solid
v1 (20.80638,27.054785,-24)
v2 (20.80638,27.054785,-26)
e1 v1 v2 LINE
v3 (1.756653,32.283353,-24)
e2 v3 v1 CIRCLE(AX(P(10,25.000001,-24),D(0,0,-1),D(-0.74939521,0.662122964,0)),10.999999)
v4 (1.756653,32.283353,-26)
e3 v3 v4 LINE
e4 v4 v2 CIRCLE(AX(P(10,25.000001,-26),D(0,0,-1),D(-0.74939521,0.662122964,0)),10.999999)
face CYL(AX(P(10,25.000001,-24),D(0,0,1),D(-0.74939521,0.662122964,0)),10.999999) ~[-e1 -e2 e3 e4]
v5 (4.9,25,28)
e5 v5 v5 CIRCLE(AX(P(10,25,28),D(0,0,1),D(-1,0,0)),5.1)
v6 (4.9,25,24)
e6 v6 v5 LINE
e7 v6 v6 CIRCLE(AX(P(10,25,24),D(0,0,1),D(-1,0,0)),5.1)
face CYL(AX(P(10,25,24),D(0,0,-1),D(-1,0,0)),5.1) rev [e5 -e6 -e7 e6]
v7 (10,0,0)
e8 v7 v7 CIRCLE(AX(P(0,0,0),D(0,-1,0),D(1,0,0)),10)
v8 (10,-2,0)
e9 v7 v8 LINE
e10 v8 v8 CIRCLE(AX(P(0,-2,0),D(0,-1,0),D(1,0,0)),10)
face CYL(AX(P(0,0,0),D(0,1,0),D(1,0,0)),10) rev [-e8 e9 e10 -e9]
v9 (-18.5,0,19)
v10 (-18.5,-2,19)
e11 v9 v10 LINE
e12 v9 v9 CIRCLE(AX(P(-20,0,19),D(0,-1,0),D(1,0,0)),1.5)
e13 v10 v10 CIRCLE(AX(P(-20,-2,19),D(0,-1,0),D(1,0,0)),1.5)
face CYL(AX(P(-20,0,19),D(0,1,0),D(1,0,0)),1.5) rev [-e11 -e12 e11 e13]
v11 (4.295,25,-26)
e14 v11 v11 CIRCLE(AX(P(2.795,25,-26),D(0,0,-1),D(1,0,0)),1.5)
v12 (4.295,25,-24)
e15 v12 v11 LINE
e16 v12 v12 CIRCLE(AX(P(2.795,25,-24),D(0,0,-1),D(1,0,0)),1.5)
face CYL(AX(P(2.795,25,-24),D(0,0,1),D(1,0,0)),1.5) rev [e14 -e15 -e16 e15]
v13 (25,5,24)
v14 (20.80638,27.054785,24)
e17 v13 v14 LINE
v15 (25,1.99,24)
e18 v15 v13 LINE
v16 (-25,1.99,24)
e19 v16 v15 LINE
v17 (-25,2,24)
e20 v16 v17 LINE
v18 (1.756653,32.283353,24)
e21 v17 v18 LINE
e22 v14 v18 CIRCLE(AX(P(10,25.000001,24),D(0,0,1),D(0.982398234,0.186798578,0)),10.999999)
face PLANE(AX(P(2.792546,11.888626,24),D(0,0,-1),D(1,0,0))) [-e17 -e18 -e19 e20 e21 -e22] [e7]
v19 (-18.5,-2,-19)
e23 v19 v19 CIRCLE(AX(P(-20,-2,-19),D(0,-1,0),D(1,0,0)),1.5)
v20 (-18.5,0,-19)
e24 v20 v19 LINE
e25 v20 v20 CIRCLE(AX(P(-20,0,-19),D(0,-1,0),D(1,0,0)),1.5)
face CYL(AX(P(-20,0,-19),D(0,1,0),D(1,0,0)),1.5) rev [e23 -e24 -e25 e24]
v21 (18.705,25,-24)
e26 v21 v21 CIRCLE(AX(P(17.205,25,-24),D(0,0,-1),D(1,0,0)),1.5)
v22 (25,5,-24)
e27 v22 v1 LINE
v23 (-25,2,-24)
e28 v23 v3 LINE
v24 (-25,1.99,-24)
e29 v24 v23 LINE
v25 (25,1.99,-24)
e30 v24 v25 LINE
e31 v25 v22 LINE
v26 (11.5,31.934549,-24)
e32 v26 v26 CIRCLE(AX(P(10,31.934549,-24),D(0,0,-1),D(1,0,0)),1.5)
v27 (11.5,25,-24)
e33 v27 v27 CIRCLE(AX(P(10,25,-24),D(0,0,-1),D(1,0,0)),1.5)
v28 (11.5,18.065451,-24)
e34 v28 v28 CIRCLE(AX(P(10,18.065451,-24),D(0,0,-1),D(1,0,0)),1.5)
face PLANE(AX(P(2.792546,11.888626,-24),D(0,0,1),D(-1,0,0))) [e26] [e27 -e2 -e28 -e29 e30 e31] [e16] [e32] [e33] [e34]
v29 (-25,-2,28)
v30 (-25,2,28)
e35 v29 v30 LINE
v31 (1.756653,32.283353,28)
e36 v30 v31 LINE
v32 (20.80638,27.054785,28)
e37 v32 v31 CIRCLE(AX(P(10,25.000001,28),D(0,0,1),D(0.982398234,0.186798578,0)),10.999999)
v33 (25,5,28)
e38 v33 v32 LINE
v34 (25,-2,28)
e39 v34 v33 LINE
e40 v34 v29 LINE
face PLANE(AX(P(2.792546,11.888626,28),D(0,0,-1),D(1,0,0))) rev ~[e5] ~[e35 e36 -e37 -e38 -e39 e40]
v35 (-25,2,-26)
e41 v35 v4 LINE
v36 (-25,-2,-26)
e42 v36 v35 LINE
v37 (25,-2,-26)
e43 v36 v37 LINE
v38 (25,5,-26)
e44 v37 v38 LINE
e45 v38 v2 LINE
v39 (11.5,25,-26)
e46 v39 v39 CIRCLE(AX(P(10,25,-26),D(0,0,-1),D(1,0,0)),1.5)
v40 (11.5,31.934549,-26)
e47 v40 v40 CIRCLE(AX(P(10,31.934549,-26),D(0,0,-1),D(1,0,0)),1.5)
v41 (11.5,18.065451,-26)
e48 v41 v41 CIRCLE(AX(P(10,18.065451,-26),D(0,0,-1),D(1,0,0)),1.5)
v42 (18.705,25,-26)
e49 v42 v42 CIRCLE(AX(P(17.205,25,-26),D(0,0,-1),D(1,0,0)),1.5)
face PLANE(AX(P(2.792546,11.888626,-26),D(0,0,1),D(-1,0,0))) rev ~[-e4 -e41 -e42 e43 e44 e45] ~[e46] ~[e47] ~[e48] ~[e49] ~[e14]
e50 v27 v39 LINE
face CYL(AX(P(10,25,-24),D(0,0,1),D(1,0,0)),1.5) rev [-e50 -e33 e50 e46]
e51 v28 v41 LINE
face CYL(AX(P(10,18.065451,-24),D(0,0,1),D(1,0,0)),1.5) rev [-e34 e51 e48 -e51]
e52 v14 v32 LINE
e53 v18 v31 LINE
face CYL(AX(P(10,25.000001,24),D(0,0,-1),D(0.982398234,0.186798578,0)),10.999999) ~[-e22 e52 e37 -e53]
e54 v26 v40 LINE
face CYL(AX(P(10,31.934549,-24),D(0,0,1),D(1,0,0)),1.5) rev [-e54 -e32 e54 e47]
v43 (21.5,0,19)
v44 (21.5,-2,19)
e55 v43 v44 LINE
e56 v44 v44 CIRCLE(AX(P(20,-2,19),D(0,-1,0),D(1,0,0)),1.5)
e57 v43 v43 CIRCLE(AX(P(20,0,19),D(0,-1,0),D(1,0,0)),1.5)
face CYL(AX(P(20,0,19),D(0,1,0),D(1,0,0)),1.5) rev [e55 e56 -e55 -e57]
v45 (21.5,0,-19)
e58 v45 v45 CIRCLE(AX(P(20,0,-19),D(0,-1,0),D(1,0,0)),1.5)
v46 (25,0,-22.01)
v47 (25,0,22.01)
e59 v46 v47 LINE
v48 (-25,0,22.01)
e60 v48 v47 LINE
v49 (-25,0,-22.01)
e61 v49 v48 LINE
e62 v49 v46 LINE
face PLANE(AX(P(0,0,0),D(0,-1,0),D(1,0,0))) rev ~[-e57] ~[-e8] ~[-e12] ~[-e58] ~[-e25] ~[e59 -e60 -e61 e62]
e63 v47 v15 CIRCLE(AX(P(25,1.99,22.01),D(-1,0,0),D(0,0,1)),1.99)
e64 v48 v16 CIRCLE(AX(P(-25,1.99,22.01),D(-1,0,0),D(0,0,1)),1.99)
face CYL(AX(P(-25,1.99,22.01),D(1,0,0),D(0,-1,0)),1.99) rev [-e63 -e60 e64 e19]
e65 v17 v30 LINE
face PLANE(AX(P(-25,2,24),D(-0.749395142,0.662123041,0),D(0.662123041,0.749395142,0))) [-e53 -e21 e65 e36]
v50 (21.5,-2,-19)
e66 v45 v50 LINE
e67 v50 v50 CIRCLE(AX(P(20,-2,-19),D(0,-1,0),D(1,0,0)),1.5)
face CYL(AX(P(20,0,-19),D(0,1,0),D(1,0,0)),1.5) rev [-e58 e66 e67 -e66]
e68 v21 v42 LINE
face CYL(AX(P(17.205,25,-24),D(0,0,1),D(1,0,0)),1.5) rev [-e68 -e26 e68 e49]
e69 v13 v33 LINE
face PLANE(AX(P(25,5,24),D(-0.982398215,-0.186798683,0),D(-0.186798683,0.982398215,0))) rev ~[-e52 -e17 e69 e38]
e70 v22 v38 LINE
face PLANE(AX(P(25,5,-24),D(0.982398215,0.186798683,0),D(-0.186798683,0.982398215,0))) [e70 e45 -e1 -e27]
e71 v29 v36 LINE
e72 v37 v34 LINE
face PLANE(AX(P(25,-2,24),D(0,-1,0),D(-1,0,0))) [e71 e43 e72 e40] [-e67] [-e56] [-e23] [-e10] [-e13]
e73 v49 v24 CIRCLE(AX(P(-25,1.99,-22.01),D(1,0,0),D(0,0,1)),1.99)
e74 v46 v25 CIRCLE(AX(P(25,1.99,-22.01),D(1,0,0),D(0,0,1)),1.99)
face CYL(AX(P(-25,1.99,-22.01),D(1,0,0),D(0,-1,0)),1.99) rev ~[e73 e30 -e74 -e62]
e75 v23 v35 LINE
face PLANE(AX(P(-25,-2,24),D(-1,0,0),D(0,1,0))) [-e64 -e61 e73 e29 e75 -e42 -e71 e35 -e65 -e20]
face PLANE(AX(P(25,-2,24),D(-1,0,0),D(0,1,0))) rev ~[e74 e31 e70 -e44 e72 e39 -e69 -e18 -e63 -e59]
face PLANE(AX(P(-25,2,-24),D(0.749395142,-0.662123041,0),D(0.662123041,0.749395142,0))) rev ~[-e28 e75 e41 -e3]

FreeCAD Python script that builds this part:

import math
import FreeCAD as App
import Part
import Sketcher

V = App.Vector


def edges_at(feature, points):
    """Names of the edges that pass closest to the given points."""
    edges = feature.Shape.Edges
    near = lambda p: min(range(len(edges)), key=lambda i: edges[i].distToShape(Part.Vertex(*p))[0])
    return sorted({f"Edge{near(p) + 1}" for p in points})


def add_polygon(sketch, points):
    """Adds a closed chain of lines whose ends are joined by coincident constraints."""
    first, n = sketch.GeometryCount, len(points)
    for a, b in zip(points, points[1:] + points[:1]):
        sketch.addGeometry(Part.LineSegment(App.Vector(*a, 0), App.Vector(*b, 0)), False)
    for i in range(n):
        sketch.addConstraint(Sketcher.Constraint("Coincident", first + i, 2, first + (i + 1) % n, 1))

doc = App.newDocument("Part")
body = doc.addObject("PartDesign::Body", "Body")

sketch1 = body.newObject("Sketcher::SketchObject", "Sketch")
sketch1.AttachmentSupport = (doc.getObject("XZ_Plane"), [""])
sketch1.MapMode = "FlatFace"
add_polygon(sketch1, [(-25, 24), (-25, -24), (25, -24), (25, 24)])
sketch1.addGeometry(Part.Circle(V(-20, -19, 0), V(0, 0, 1), 1.5), False)
sketch1.addGeometry(Part.Circle(V(20, -19, 0), V(0, 0, 1), 1.5), False)
sketch1.addGeometry(Part.Circle(V(-20, 19, 0), V(0, 0, 1), 1.5), False)
sketch1.addGeometry(Part.Circle(V(0, 0, 0), V(0, 0, 1), 10), False)
sketch1.addGeometry(Part.Circle(V(20, 19, 0), V(0, 0, 1), 1.5), False)
sketch1.addConstraint([
    Sketcher.Constraint("Vertical", 0),
    Sketcher.Constraint("Horizontal", 1),
    Sketcher.Constraint("Vertical", 2),
    Sketcher.Constraint("Horizontal", 3),
    Sketcher.Constraint("Coincident", 7, 3, -1, 1),
    Sketcher.Constraint("Equal", 4, 5),
    Sketcher.Constraint("Equal", 5, 6),
    Sketcher.Constraint("Equal", 6, 8),
    Sketcher.Constraint("Symmetric", 5, 3, 6, 3, -1, 1),
    Sketcher.Constraint("Symmetric", 4, 3, 8, 3, -1, 1),
    Sketcher.Constraint("Symmetric", 0, 2, 2, 2, -1, 1),
    Sketcher.Constraint("Symmetric", 4, 3, 5, 3, -2),
    Sketcher.Constraint("Diameter", 4, 3.0),
    Sketcher.Constraint("Diameter", 7, 20.0),
    Sketcher.Constraint("DistanceX", 1, 1, 1, 2, 50.0),
    Sketcher.Constraint("DistanceY", 0, 2, 0, 1, 48.0),
    Sketcher.Constraint("DistanceX", 4, 3, -1, 1, 20.0),
    Sketcher.Constraint("DistanceY", 4, 3, -1, 1, 19.0),
])
pad1 = body.newObject("PartDesign::Pad", "Pad")
pad1.Profile = sketch1
pad1.Length = 2

sketch2 = body.newObject("Sketcher::SketchObject", "Sketch001")
sketch2.AttachmentSupport = (doc.getObject("XY_Plane"), [""])
sketch2.MapMode = "FlatFace"
sketch2.AttachmentOffset = App.Placement(V(0, 0, -24), App.Rotation())
sketch2.addGeometry([
    Part.LineSegment(V(-25, -2, 0), V(-25, 2, 0)),
    Part.LineSegment(V(-25, 2, 0), V(1.8, 32.3, 0)),
    Part.ArcOfCircle(Part.Circle(V(10, 25, 0), V(0, 0, 1), 11), math.radians(11), math.radians(139)),
    Part.LineSegment(V(20.8, 27.1, 0), V(25, 5, 0)),
    Part.LineSegment(V(25, 5, 0), V(25, -2, 0)),
    Part.LineSegment(V(25, -2, 0), V(-25, -2, 0)),
    Part.Circle(V(10, 31.9, 0), V(0, 0, 1), 1.5),
    Part.Circle(V(17.2, 25, 0), V(0, 0, 1), 1.5),
    Part.Circle(V(10, 25, 0), V(0, 0, 1), 1.5),
    Part.Circle(V(10, 18.1, 0), V(0, 0, 1), 1.5),
    Part.Circle(V(2.8, 25, 0), V(0, 0, 1), 1.5),
], False)
sketch2.addConstraint([
    Sketcher.Constraint("Coincident", 0, 2, 1, 1),
    Sketcher.Constraint("Tangent", 1, 2, 2, 2),
    Sketcher.Constraint("Tangent", 2, 1, 3, 1),
    Sketcher.Constraint("Coincident", 3, 2, 4, 1),
    Sketcher.Constraint("Coincident", 4, 2, 5, 1),
    Sketcher.Constraint("Coincident", 5, 2, 0, 1),
    Sketcher.Constraint("Vertical", 0),
    Sketcher.Constraint("Vertical", 4),
    Sketcher.Constraint("Horizontal", 5),
    Sketcher.Constraint("Coincident", 8, 3, 2, 3),
    Sketcher.Constraint("Equal", 6, 7),
    Sketcher.Constraint("Equal", 7, 8),
    Sketcher.Constraint("Equal", 8, 9),
    Sketcher.Constraint("Equal", 9, 10),
    Sketcher.Constraint("Symmetric", 0, 2, 4, 2, -1, 1),
    Sketcher.Constraint("Horizontal", 2, 3, 7, 3),
    Sketcher.Constraint("Horizontal", 8, 3, 10, 3),
    Sketcher.Constraint("Vertical", 2, 3, 6, 3),
    Sketcher.Constraint("Vertical", 8, 3, 9, 3),
    Sketcher.Constraint("Diameter", 6, 3.0),
    Sketcher.Constraint("Radius", 2, 10.999999),
    Sketcher.Constraint("DistanceX", 5, 2, 5, 1, 50.0),
    Sketcher.Constraint("DistanceY", 0, 1, 0, 2, 4.0),
    Sketcher.Constraint("DistanceY", 4, 2, 4, 1, 7.0),
    Sketcher.Constraint("DistanceX", -1, 1, 2, 3, 10.0),
    Sketcher.Constraint("DistanceY", -1, 1, 2, 3, 25.000001),
    Sketcher.Constraint("DistanceX", 10, 3, 7, 3, 14.41),
    Sketcher.Constraint("DistanceX", -1, 1, 7, 3, 17.205),
    Sketcher.Constraint("DistanceY", 9, 3, 6, 3, 13.869098),
    Sketcher.Constraint("DistanceY", 9, 3, 1, 2, 14.217902),
])
pad2 = body.newObject("PartDesign::Pad", "Pad001")
pad2.Profile = sketch2
pad2.Length = 2
pad2.Reversed = True

sketch3 = body.newObject("Sketcher::SketchObject", "Sketch002")
sketch3.AttachmentSupport = (doc.getObject("XY_Plane"), [""])
sketch3.MapMode = "FlatFace"
sketch3.AttachmentOffset = App.Placement(V(0, 0, 24), App.Rotation())
sketch3.addGeometry([
    Part.LineSegment(V(-25, -2, 0), V(25, -2, 0)),
    Part.LineSegment(V(25, -2, 0), V(25, 5, 0)),
    Part.LineSegment(V(25, 5, 0), V(20.8, 27.1, 0)),
    Part.ArcOfCircle(Part.Circle(V(10, 25, 0), V(0, 0, 1), 11), math.radians(11), math.radians(139)),
    Part.LineSegment(V(1.8, 32.3, 0), V(-25, 2, 0)),
    Part.LineSegment(V(-25, 2, 0), V(-25, -2, 0)),
    Part.Circle(V(10, 25, 0), V(0, 0, 1), 5.1),
], False)
sketch3.addConstraint([
    Sketcher.Constraint("Coincident", 0, 2, 1, 1),
    Sketcher.Constraint("Coincident", 1, 2, 2, 1),
    Sketcher.Constraint("Tangent", 2, 2, 3, 1),
    Sketcher.Constraint("Tangent", 3, 2, 4, 1),
    Sketcher.Constraint("Coincident", 4, 2, 5, 1),
    Sketcher.Constraint("Coincident", 5, 2, 0, 1),
    Sketcher.Constraint("Horizontal", 0),
    Sketcher.Constraint("Vertical", 1),
    Sketcher.Constraint("Vertical", 5),
    Sketcher.Constraint("Coincident", 6, 3, 3, 3),
    Sketcher.Constraint("Symmetric", 0, 2, 4, 2, -1, 1),
    Sketcher.Constraint("Radius", 3, 10.999999),
    Sketcher.Constraint("Diameter", 6, 10.2),
    Sketcher.Constraint("DistanceX", 0, 1, 0, 2, 50.0),
    Sketcher.Constraint("DistanceY", 1, 1, 1, 2, 7.0),
    Sketcher.Constraint("DistanceY", 5, 2, 5, 1, 4.0),
    Sketcher.Constraint("DistanceX", -1, 1, 3, 3, 10.0),
    Sketcher.Constraint("DistanceY", -1, 1, 3, 3, 25.000001),
])
pad3 = body.newObject("PartDesign::Pad", "Pad002")
pad3.Profile = sketch3
pad3.Length = 4
doc.recompute()

fillet = body.newObject("PartDesign::Fillet", "Fillet")
fillet.Base = (pad3, edges_at(pad3, [(0, 0, 24)]))
fillet.Radius = 1.99
doc.recompute()

fillet2 = body.newObject("PartDesign::Fillet", "Fillet001")
fillet2.Base = (fillet, edges_at(fillet, [(0, 0, -24)]))
fillet2.Radius = 1.99

doc.recompute()
